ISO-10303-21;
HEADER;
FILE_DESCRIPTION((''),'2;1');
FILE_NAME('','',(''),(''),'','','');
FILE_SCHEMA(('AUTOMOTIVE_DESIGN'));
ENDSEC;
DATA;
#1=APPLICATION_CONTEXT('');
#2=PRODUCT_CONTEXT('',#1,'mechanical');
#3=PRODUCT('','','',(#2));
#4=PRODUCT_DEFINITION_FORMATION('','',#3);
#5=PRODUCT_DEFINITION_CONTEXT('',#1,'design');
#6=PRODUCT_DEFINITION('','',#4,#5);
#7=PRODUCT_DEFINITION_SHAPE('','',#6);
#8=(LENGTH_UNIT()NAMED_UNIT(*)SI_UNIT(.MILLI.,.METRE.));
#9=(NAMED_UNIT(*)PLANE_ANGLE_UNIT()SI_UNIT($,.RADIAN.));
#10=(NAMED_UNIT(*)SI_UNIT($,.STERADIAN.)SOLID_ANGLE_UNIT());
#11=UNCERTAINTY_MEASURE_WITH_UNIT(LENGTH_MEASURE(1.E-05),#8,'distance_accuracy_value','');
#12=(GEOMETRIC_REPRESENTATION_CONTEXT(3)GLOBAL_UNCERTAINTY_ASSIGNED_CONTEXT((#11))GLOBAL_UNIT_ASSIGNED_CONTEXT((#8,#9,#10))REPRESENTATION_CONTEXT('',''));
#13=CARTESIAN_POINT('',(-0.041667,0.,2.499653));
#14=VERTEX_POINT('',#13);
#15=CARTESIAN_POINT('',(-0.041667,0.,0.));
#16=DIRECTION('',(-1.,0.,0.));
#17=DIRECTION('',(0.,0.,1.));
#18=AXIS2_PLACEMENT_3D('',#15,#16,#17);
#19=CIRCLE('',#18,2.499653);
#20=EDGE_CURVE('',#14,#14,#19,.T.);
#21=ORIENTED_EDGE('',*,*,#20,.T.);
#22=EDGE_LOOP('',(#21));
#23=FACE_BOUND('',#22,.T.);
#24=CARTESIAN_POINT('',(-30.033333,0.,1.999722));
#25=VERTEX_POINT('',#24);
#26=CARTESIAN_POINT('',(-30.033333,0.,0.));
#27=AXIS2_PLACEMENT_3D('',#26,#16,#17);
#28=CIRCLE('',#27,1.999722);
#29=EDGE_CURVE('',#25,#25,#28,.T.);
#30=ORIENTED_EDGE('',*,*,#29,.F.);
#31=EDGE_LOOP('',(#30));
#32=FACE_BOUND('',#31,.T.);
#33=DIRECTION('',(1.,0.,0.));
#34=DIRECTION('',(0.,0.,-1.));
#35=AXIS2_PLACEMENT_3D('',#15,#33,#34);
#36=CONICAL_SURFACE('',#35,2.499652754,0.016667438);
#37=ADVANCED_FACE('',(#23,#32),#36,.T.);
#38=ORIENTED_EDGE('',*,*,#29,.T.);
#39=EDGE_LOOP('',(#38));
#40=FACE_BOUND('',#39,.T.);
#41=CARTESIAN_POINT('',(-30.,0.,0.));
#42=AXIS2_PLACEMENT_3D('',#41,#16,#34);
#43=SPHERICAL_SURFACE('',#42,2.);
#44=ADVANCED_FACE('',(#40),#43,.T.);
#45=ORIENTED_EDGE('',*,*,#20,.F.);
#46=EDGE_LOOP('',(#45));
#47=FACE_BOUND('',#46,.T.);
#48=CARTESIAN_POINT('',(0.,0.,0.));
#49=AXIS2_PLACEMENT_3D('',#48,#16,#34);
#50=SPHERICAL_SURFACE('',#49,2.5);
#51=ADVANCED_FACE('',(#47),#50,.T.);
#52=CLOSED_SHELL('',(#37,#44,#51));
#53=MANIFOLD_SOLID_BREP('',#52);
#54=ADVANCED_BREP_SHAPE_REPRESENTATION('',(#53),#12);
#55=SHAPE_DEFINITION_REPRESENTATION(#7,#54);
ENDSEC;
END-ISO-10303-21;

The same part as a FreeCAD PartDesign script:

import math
import FreeCAD as App
import Part
import Sketcher
from FreeCAD import Vector
Q = App.Units.Quantity

doc = App.newDocument("Part")
body = doc.addObject("PartDesign::Body", "Body")

sketch1 = doc.addObject("Sketcher::SketchObject", "Sketch")
body.addObject(sketch1)
sketch1.AttachmentSupport = (doc.XZ_Plane, [""])
sketch1.MapMode = "FlatFace"
sketch1.addGeometry([
    Part.LineSegment(Vector(0, -2.5, 0), Vector(-30, -2, 0)),
    Part.ArcOfCircle(Part.Circle(Vector(-30, 0, 0), Vector(0, 0, 1), 2), math.radians(180), math.radians(269)),
    Part.LineSegment(Vector(-32, 0, 0), Vector(2.5, 0, 0)),
    Part.ArcOfCircle(Part.Circle(Vector(0, 0, 0), Vector(0, 0, 1), 2.5), math.radians(-91), math.radians(0)),
], False)
sketch1.addConstraint([
    Sketcher.Constraint("Tangent", 0, 2, 1, 2),
    Sketcher.Constraint("Coincident", 1, 1, 2, 1),
    Sketcher.Constraint("Coincident", 2, 2, 3, 2),
    Sketcher.Constraint("Tangent", 3, 1, 0, 1),
    Sketcher.Constraint("Horizontal", 2),
    Sketcher.Constraint("Coincident", 3, 3, -1, 1),
    Sketcher.Constraint("PointOnObject", 1, 3, -1),
    Sketcher.Constraint("PointOnObject", 1, 1, -1),
    Sketcher.Constraint("Radius", 1, Q("2 mm")),
    Sketcher.Constraint("Radius", 3, Q("2.5 mm")),
    Sketcher.Constraint("DistanceX", 2, 1, 2, 2, Q("34.5 mm")),
])
revolution = doc.addObject("PartDesign::Revolution", "Revolution")
body.addObject(revolution)
revolution.Profile = sketch1
revolution.ReferenceAxis = (sketch1, ["H_Axis"])
revolution.Angle = 360

doc.recompute()
